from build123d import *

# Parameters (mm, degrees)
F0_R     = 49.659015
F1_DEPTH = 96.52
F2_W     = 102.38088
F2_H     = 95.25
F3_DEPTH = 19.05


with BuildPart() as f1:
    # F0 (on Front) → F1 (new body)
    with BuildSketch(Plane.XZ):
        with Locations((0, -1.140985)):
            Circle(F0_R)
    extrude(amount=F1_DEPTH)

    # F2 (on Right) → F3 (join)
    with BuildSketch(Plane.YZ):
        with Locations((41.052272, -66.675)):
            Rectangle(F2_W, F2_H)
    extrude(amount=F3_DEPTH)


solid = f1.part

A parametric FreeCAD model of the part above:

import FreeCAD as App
import Part
import Sketcher

V = App.Vector
Q = App.Units.Quantity

doc = App.newDocument("Part")
body = doc.addObject("PartDesign::Body", "Body")

sketch1 = body.newObject("Sketcher::SketchObject", "Sketch")
sketch1.AttachmentSupport = (doc.getObject("XZ_Plane"), [""])
sketch1.MapMode = "FlatFace"
sketch1.addGeometry(Part.Circle(V(0, -1.140985, 0), V(0, 0, 1), 49.659015), False)
sketch1.addConstraint(Sketcher.Constraint("PointOnObject", 0, 3, -2))
sketch1.addConstraint(Sketcher.Constraint("Diameter", 0, Q("99.31803 mm")))
sketch1.addConstraint(Sketcher.Constraint("DistanceY", 0, 3, -1, 1, Q("1.140985 mm")))
pad1 = body.newObject("PartDesign::Pad", "Pad")
pad1.Profile = sketch1
pad1.Length = Q("3.8 in")

sketch2 = body.newObject("Sketcher::SketchObject", "Sketch001")
sketch2.AttachmentSupport = (doc.getObject("YZ_Plane"), [""])
sketch2.MapMode = "FlatFace"
sketch2.addGeometry(Part.LineSegment(V(-10.138168, -19.05, 0), V(-10.138168, -114.3, 0)), False)
sketch2.addGeometry(Part.LineSegment(V(-10.138168, -114.3, 0), V(92.242712, -114.3, 0)), False)
sketch2.addGeometry(Part.LineSegment(V(92.242712, -114.3, 0), V(92.242712, -19.05, 0)), False)
sketch2.addGeometry(Part.LineSegment(V(92.242712, -19.05, 0), V(-10.138168, -19.05, 0)), False)
sketch2.addConstraint(Sketcher.Constraint("Coincident", 0, 2, 1, 1))
sketch2.addConstraint(Sketcher.Constraint("Coincident", 1, 2, 2, 1))
sketch2.addConstraint(Sketcher.Constraint("Coincident", 2, 2, 3, 1))
sketch2.addConstraint(Sketcher.Constraint("Coincident", 3, 2, 0, 1))
sketch2.addConstraint(Sketcher.Constraint("Vertical", 0))
sketch2.addConstraint(Sketcher.Constraint("Horizontal", 1))
sketch2.addConstraint(Sketcher.Constraint("Vertical", 2))
sketch2.addConstraint(Sketcher.Constraint("Horizontal", 3))
sketch2.addConstraint(Sketcher.Constraint("DistanceY", 0, 2, 0, 1, Q("3.75 in")))
sketch2.addConstraint(Sketcher.Constraint("DistanceY", 0, 2, -1, 1, Q("4.5 in")))
sketch2.addConstraint(Sketcher.Constraint("DistanceX", 1, 1, 1, 2, Q("102.38088 mm")))
sketch2.addConstraint(Sketcher.Constraint("DistanceX", -1, 1, 1, 2, Q("92.242712 mm")))
pad2 = body.newObject("PartDesign::Pad", "Pad001")
pad2.Profile = sketch2
pad2.Length = Q("0.75 in")

doc.recompute()
